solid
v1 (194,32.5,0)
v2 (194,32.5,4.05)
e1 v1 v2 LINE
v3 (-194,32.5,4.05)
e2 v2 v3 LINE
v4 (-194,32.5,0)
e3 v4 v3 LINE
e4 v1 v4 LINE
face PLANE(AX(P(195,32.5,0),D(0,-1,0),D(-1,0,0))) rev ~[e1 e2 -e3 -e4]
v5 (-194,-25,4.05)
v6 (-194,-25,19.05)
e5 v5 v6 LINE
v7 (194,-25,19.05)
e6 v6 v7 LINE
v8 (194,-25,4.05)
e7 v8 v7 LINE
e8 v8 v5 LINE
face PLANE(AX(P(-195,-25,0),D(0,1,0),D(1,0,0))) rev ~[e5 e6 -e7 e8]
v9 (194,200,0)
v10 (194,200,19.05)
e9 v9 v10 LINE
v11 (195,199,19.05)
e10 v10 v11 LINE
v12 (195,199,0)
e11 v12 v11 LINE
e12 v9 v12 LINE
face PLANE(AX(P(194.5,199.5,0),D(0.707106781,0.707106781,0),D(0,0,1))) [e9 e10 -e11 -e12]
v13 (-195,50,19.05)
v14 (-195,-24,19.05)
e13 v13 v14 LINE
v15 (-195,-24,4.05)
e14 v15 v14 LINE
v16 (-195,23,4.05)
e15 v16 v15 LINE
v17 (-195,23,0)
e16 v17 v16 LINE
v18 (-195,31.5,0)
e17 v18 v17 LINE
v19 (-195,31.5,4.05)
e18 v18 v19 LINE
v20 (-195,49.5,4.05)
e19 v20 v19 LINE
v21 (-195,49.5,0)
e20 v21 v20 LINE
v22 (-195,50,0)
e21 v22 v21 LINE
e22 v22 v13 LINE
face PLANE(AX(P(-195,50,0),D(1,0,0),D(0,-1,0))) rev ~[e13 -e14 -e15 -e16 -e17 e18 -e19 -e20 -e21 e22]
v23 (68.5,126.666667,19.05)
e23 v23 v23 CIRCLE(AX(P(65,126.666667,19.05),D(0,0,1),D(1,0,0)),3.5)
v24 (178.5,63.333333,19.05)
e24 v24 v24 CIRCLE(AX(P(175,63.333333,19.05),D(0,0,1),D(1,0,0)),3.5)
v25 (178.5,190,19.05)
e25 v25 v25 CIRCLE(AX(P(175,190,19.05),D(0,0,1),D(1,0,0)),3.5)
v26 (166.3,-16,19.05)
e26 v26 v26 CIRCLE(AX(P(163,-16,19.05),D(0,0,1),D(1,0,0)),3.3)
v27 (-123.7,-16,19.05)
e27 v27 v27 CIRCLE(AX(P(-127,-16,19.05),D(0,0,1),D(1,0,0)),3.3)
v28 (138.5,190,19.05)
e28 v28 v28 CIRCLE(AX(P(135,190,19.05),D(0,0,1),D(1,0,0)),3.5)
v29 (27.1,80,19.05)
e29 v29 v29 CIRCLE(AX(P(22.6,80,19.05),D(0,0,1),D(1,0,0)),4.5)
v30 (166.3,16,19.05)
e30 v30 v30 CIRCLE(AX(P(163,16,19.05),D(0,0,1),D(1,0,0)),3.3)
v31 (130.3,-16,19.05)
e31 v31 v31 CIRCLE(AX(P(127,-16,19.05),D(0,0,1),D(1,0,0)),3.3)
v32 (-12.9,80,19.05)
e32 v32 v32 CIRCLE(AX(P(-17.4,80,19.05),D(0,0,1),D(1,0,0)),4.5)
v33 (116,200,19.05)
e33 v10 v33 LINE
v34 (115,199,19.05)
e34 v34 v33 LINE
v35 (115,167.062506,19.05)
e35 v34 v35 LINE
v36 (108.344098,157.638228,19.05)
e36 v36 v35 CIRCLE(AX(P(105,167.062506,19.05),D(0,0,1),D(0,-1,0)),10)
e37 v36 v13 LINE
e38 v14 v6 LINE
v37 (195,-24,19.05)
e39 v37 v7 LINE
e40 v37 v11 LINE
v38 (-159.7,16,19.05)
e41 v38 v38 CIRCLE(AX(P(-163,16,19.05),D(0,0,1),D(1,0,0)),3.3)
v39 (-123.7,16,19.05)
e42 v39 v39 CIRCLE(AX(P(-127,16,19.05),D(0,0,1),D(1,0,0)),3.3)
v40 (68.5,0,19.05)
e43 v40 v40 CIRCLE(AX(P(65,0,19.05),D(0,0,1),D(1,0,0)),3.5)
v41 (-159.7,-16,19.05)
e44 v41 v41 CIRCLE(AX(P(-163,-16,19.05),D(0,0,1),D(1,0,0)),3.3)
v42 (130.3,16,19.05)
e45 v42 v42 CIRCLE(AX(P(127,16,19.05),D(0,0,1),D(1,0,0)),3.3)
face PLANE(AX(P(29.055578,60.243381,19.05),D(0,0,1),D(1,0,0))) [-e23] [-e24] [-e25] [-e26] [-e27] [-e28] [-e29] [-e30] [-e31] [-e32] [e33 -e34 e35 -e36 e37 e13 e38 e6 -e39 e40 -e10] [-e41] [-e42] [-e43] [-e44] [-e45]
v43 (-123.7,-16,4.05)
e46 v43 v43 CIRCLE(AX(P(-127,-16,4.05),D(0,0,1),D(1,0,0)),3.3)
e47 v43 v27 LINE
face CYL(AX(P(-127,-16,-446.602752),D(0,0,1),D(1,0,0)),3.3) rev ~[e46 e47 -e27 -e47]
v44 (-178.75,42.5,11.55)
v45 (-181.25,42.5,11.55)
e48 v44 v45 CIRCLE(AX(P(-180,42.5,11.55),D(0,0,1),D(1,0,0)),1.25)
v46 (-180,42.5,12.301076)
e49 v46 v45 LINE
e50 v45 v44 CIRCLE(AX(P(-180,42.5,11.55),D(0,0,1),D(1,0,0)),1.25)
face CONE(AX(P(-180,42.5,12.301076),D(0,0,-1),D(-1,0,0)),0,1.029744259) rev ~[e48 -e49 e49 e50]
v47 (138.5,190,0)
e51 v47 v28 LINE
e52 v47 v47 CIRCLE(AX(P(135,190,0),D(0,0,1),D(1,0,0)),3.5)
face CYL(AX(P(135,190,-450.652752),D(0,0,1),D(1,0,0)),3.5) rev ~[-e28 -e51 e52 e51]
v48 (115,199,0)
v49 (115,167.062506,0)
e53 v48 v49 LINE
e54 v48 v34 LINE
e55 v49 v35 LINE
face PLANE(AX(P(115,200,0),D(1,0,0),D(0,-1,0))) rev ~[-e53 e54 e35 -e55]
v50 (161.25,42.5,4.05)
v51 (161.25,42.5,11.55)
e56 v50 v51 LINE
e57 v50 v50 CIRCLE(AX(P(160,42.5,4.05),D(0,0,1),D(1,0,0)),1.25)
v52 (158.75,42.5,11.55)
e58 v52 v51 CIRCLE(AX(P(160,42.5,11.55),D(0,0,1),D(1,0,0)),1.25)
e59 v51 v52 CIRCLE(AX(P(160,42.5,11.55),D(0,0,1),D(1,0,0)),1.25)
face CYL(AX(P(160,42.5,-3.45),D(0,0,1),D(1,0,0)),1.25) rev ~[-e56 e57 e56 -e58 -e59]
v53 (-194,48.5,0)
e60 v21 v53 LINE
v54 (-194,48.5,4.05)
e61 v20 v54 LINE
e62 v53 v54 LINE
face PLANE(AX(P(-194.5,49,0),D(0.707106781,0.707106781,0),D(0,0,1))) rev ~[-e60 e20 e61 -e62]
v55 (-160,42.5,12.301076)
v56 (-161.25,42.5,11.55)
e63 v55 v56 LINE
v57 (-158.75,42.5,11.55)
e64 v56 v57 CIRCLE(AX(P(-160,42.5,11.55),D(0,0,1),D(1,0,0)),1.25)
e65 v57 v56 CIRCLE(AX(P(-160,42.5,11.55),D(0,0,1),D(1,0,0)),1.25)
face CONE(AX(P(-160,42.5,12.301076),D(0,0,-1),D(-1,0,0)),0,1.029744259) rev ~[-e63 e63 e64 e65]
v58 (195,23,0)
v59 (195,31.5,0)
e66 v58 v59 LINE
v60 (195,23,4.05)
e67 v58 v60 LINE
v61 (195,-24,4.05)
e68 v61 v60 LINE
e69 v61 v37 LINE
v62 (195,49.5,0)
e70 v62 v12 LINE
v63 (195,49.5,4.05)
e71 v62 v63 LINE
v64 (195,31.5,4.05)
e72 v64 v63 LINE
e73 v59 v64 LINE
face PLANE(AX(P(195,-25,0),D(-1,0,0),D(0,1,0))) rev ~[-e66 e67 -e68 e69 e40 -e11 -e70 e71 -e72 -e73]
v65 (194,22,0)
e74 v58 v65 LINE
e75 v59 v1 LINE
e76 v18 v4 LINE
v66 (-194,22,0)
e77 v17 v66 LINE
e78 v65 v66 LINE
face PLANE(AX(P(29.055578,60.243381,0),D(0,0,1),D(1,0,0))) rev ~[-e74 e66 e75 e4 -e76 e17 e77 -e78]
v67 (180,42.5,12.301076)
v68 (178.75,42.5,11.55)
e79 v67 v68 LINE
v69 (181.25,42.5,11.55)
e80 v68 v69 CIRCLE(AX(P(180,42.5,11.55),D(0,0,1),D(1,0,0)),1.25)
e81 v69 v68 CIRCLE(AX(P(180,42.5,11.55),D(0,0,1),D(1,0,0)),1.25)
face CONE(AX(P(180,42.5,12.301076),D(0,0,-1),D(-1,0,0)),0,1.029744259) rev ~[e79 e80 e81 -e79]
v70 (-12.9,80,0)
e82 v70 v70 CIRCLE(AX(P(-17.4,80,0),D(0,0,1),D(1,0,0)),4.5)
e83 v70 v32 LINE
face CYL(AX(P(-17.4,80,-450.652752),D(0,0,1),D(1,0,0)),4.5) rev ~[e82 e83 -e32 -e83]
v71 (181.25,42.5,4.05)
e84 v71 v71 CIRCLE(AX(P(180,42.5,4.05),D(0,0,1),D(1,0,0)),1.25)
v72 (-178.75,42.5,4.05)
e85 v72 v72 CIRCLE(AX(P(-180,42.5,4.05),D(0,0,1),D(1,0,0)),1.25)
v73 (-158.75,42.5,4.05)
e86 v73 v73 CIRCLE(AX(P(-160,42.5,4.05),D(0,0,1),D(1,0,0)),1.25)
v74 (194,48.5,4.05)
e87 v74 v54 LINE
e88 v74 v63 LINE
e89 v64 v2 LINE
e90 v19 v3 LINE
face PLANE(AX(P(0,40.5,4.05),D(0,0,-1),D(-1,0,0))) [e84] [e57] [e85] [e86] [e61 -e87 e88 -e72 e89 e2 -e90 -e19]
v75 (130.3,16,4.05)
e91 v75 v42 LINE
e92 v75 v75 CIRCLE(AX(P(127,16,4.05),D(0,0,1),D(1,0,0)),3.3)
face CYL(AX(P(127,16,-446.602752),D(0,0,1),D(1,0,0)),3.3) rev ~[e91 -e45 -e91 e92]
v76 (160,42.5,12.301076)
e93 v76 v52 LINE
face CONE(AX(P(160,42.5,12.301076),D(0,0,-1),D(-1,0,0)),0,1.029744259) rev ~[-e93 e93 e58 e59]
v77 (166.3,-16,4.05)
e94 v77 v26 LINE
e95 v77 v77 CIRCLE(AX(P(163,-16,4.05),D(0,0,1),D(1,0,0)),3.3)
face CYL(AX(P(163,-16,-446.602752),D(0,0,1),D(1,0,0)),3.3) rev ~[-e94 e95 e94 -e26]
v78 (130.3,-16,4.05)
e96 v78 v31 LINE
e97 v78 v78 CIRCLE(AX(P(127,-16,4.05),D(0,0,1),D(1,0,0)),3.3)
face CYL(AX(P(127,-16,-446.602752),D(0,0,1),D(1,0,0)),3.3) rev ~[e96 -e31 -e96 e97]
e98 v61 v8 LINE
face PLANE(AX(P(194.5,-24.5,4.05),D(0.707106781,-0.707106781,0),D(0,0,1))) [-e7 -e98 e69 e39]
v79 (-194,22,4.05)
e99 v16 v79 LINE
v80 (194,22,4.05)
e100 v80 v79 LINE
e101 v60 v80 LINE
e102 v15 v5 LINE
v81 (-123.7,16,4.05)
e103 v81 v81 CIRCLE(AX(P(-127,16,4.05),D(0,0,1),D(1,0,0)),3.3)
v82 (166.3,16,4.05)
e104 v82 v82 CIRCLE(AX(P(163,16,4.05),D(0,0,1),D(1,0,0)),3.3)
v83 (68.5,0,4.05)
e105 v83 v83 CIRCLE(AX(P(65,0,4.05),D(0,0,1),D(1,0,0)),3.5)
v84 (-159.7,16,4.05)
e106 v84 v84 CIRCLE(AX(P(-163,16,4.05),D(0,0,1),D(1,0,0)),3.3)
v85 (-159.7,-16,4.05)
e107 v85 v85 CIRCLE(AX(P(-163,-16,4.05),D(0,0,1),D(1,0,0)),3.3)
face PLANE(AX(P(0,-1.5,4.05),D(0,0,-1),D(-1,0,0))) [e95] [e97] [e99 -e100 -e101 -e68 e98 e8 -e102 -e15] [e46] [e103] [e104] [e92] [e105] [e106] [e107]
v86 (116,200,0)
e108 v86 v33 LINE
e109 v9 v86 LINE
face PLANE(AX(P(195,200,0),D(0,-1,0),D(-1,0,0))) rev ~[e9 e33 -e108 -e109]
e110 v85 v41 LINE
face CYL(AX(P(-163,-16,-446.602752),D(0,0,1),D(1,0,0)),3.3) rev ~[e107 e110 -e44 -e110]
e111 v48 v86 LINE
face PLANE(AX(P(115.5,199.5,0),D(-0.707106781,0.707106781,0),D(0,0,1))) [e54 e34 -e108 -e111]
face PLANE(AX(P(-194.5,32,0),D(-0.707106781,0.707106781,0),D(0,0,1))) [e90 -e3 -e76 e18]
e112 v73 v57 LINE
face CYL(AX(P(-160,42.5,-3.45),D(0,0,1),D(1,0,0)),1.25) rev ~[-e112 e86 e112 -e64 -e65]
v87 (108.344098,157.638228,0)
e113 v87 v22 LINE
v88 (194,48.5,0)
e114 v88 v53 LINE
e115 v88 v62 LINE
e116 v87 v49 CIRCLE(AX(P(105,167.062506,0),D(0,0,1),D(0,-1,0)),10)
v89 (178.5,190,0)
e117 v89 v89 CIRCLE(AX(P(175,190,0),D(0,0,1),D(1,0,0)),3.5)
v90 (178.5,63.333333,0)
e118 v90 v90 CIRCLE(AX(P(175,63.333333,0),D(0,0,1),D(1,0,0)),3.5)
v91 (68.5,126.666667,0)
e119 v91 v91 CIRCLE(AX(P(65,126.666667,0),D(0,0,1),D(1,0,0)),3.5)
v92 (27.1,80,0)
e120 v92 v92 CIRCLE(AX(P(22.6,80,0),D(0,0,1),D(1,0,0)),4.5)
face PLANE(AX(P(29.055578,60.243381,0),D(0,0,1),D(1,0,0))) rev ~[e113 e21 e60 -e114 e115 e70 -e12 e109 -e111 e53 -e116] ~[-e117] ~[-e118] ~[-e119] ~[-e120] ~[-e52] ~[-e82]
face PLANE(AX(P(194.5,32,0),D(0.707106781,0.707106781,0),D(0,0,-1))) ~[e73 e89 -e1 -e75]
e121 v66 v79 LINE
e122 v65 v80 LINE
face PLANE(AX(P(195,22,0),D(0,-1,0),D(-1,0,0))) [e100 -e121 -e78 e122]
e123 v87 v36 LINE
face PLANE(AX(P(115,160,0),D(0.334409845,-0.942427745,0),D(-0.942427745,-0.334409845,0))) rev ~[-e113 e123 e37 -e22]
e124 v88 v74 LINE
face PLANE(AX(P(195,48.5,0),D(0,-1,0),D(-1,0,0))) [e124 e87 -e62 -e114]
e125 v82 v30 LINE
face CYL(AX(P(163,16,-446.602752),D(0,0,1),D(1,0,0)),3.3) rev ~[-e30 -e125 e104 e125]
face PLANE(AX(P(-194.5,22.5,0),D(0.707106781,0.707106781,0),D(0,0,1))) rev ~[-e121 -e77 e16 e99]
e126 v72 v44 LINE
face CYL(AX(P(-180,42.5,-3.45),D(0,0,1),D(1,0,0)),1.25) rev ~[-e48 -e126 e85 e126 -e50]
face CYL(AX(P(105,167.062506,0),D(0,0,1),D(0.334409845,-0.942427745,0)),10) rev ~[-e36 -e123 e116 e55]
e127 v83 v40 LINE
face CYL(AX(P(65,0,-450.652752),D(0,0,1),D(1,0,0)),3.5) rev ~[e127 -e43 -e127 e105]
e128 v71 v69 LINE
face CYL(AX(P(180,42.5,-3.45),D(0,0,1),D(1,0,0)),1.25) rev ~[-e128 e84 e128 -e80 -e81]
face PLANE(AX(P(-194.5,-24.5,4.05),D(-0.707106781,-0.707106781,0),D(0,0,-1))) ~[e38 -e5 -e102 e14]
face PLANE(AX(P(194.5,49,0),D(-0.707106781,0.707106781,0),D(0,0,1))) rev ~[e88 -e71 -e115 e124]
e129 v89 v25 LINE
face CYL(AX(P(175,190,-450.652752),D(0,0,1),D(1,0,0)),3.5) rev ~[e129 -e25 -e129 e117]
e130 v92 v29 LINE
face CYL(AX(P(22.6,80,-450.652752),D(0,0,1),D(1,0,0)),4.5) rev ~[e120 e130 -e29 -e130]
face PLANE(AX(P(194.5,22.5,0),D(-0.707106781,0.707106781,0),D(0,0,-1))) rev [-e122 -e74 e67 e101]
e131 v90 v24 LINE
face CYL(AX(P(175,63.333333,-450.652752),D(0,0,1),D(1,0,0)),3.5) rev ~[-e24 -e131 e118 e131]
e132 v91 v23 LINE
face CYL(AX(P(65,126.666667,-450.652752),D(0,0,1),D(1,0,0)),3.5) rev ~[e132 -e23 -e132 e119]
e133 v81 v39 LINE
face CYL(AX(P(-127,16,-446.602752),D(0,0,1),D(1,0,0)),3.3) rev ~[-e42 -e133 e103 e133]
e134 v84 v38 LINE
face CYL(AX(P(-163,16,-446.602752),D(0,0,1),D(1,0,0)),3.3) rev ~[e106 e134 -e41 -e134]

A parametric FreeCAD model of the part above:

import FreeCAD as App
import Part
import Sketcher

V = App.Vector
Q = App.Units.Quantity


def edges_at(feature, points):
    """Names of the edges that pass closest to the given points."""
    edges = feature.Shape.Edges
    near = lambda p: min(range(len(edges)), key=lambda i: edges[i].distToShape(Part.Vertex(*p))[0])
    return sorted({f"Edge{near(p) + 1}" for p in points})

doc = App.newDocument("Part")
body = doc.addObject("PartDesign::Body", "Body")

# Sketch on XY plane
sketch1 = body.newObject("Sketcher::SketchObject", "Sketch")
sketch1.AttachmentSupport = (doc.getObject("XY_Plane"), [""])
sketch1.MapMode = "FlatFace"
sketch1.addGeometry([
    Part.LineSegment(V(-195, 50, 0), V(-195, -25, 0)),  # 0
    Part.LineSegment(V(-195, -25, 0), V(195, -25, 0)),  # 1
    Part.LineSegment(V(195, -25, 0), V(195, 200, 0)),  # 2
    Part.LineSegment(V(195, 200, 0), V(115, 200, 0)),  # 3
    Part.LineSegment(V(115, 200, 0), V(115, 160, 0)),  # 4
    Part.LineSegment(V(115, 160, 0), V(-195, 50, 0)),  # 5
], False)
sketch1.addConstraint([
    Sketcher.Constraint("Coincident", 0, 2, 1, 1),
    Sketcher.Constraint("Coincident", 1, 2, 2, 1),
    Sketcher.Constraint("Coincident", 2, 2, 3, 1),
    Sketcher.Constraint("Coincident", 3, 2, 4, 1),
    Sketcher.Constraint("Coincident", 4, 2, 5, 1),
    Sketcher.Constraint("Coincident", 5, 2, 0, 1),
    Sketcher.Constraint("Vertical", 0),
    Sketcher.Constraint("Horizontal", 1),
    Sketcher.Constraint("Vertical", 2),
    Sketcher.Constraint("Horizontal", 3),
    Sketcher.Constraint("Vertical", 4),
    Sketcher.Constraint("DistanceX", 1, 1, 1, 2, Q("390 mm")),
    Sketcher.Constraint("DistanceX", 3, 2, 3, 1, Q("80 mm")),
    Sketcher.Constraint("DistanceY", 0, 2, 0, 1, Q("75 mm")),
    Sketcher.Constraint("DistanceY", 2, 1, 2, 2, Q("225 mm")),
    Sketcher.Constraint("DistanceY", 4, 2, 4, 1, Q("40 mm")),
    Sketcher.Constraint("DistanceX", 0, 2, -1, 1, Q("195 mm")),
    Sketcher.Constraint("DistanceY", 0, 2, -1, 1, Q("25 mm")),
])
pad1 = body.newObject("PartDesign::Pad", "Pad")
pad1.Profile = sketch1
pad1.Length = 19.05

# Sketch on XY plane
sketch2 = body.newObject("Sketcher::SketchObject", "Sketch001")
sketch2.AttachmentSupport = (doc.getObject("XY_Plane"), [""])
sketch2.MapMode = "FlatFace"
sketch2.addGeometry([
    Part.LineSegment(V(195, 22, 0), V(195, -25, 0)),  # 0
    Part.LineSegment(V(195, -25, 0), V(-195, -25, 0)),  # 1
    Part.LineSegment(V(-195, -25, 0), V(-195, 22, 0)),  # 2
    Part.LineSegment(V(-195, 22, 0), V(195, 22, 0)),  # 3
    Part.LineSegment(V(195, 48.5, 0), V(195, 32.5, 0)),  # 4
    Part.LineSegment(V(195, 32.5, 0), V(-195, 32.5, 0)),  # 5
    Part.LineSegment(V(-195, 32.5, 0), V(-195, 48.5, 0)),  # 6
    Part.LineSegment(V(-195, 48.5, 0), V(195, 48.5, 0)),  # 7
], False)
sketch2.addConstraint([
    Sketcher.Constraint("Coincident", 0, 2, 1, 1),
    Sketcher.Constraint("Coincident", 1, 2, 2, 1),
    Sketcher.Constraint("Coincident", 2, 2, 3, 1),
    Sketcher.Constraint("Coincident", 3, 2, 0, 1),
    Sketcher.Constraint("Coincident", 4, 2, 5, 1),
    Sketcher.Constraint("Coincident", 5, 2, 6, 1),
    Sketcher.Constraint("Coincident", 6, 2, 7, 1),
    Sketcher.Constraint("Coincident", 7, 2, 4, 1),
    Sketcher.Constraint("Vertical", 0),
    Sketcher.Constraint("Horizontal", 1),
    Sketcher.Constraint("Vertical", 2),
    Sketcher.Constraint("Horizontal", 3),
    Sketcher.Constraint("Vertical", 4),
    Sketcher.Constraint("Horizontal", 5),
    Sketcher.Constraint("Vertical", 6),
    Sketcher.Constraint("Horizontal", 7),
    Sketcher.Constraint("Vertical", 3, 2, 4, 2),
    Sketcher.Constraint("Vertical", 2, 2, 5, 2),
    Sketcher.Constraint("DistanceX", 1, 2, 1, 1, Q("390 mm")),
    Sketcher.Constraint("DistanceY", 0, 2, 0, 1, Q("47 mm")),
    Sketcher.Constraint("DistanceY", 4, 2, 4, 1, Q("16 mm")),
    Sketcher.Constraint("DistanceX", -1, 1, 0, 2, Q("195 mm")),
    Sketcher.Constraint("DistanceY", 0, 2, -1, 1, Q("25 mm")),
    Sketcher.Constraint("DistanceY", -1, 1, 4, 2, Q("32.5 mm")),
])
pocket1 = body.newObject("PartDesign::Pocket", "Pocket")
pocket1.Profile = sketch2
pocket1.Length = 4.05
pocket1.Reversed = True

# Sketch on XY plane
sketch3 = body.newObject("Sketcher::SketchObject", "Sketch002")
sketch3.AttachmentSupport = (doc.getObject("XY_Plane"), [""])
sketch3.MapMode = "FlatFace"
sketch3.AttachmentOffset = App.Placement(V(0, 0, 4.05), App.Rotation())
sketch3.addGeometry([
    Part.Circle(V(-127, 16, 0), V(0, 0, 1), 3.3),
    Part.Circle(V(-163, 16, 0), V(0, 0, 1), 3.3),
    Part.Circle(V(-163, -16, 0), V(0, 0, 1), 3.3),
    Part.Circle(V(-127, -16, 0), V(0, 0, 1), 3.3),
], False)
sketch3.addConstraint([
    Sketcher.Constraint("Equal", 0, 1),
    Sketcher.Constraint("Equal", 1, 2),
    Sketcher.Constraint("Equal", 2, 3),
    Sketcher.Constraint("Symmetric", 1, 3, 2, 3, -1),
    Sketcher.Constraint("Symmetric", 0, 3, 3, 3, -1),
    Sketcher.Constraint("Horizontal", 0, 3, 1, 3),
    Sketcher.Constraint("Diameter", 0, Q("6.6 mm")),
    Sketcher.Constraint("DistanceX", 0, 3, -1, 1, Q("127 mm")),
    Sketcher.Constraint("DistanceY", -1, 1, 0, 3, Q("16 mm")),
    Sketcher.Constraint("DistanceX", 1, 3, -1, 1, Q("163 mm")),
])
doc.recompute()
hole = body.newObject("PartDesign::Hole", "Hole")
hole.Profile = sketch3
hole.ThreadType = "None"
hole.Diameter = 6.6
hole.DepthType = "ThroughAll"
hole.Reversed = True

# Sketch on XY plane
sketch4 = body.newObject("Sketcher::SketchObject", "Sketch003")
sketch4.AttachmentSupport = (doc.getObject("XY_Plane"), [""])
sketch4.MapMode = "FlatFace"
sketch4.AttachmentOffset = App.Placement(V(0, 0, 4.05), App.Rotation())
sketch4.addGeometry([
    Part.Circle(V(163, 16, 0), V(0, 0, 1), 3.3),
    Part.Circle(V(127, 16, 0), V(0, 0, 1), 3.3),
    Part.Circle(V(127, -16, 0), V(0, 0, 1), 3.3),
    Part.Circle(V(163, -16, 0), V(0, 0, 1), 3.3),
], False)
sketch4.addConstraint([
    Sketcher.Constraint("Equal", 0, 1),
    Sketcher.Constraint("Equal", 1, 2),
    Sketcher.Constraint("Equal", 2, 3),
    Sketcher.Constraint("Symmetric", 1, 3, 2, 3, -1),
    Sketcher.Constraint("Symmetric", 0, 3, 3, 3, -1),
    Sketcher.Constraint("Horizontal", 0, 3, 1, 3),
    Sketcher.Constraint("Diameter", 0, Q("6.6 mm")),
    Sketcher.Constraint("DistanceX", -1, 1, 0, 3, Q("163 mm")),
    Sketcher.Constraint("DistanceY", -1, 1, 0, 3, Q("16 mm")),
    Sketcher.Constraint("DistanceX", -1, 1, 1, 3, Q("127 mm")),
])
doc.recompute()
hole2 = body.newObject("PartDesign::Hole", "Hole001")
hole2.Profile = sketch4
hole2.ThreadType = "None"
hole2.Diameter = 6.6
hole2.DepthType = "ThroughAll"
hole2.Reversed = True

# Sketch on XY plane
sketch5 = body.newObject("Sketcher::SketchObject", "Sketch004")
sketch5.AttachmentSupport = (doc.getObject("XY_Plane"), [""])
sketch5.MapMode = "FlatFace"
sketch5.AttachmentOffset = App.Placement(V(0, 0, 4.05), App.Rotation())
sketch5.addGeometry([
    Part.Circle(V(180, 42.5, 0), V(0, 0, 1), 1.25),
    Part.Circle(V(160, 42.5, 0), V(0, 0, 1), 1.25),
    Part.Circle(V(-180, 42.5, 0), V(0, 0, 1), 1.25),
    Part.Circle(V(-160, 42.5, 0), V(0, 0, 1), 1.25),
], False)
sketch5.addConstraint([
    Sketcher.Constraint("Equal", 0, 1),
    Sketcher.Constraint("Equal", 1, 2),
    Sketcher.Constraint("Equal", 2, 3),
    Sketcher.Constraint("Symmetric", 0, 3, 2, 3, -2),
    Sketcher.Constraint("Symmetric", 1, 3, 3, 3, -2),
    Sketcher.Constraint("Horizontal", 0, 3, 1, 3),
    Sketcher.Constraint("Diameter", 0, Q("2.5 mm")),
    Sketcher.Constraint("DistanceX", -1, 1, 0, 3, Q("180 mm")),
    Sketcher.Constraint("DistanceX", -1, 1, 1, 3, Q("160 mm")),
    Sketcher.Constraint("DistanceY", -1, 1, 0, 3, Q("42.5 mm")),
])
doc.recompute()
hole3 = body.newObject("PartDesign::Hole", "Hole002")
hole3.Profile = sketch5
hole3.ThreadType = "None"
hole3.Diameter = 2.5
hole3.DepthType = "Dimension"
hole3.Depth = 7.5
hole3.DrillPoint = "Angled"
hole3.DrillPointAngle = 118
hole3.Reversed = True

# Sketch on XY plane
sketch6 = body.newObject("Sketcher::SketchObject", "Sketch005")
sketch6.AttachmentSupport = (doc.getObject("XY_Plane"), [""])
sketch6.MapMode = "FlatFace"
sketch6.addGeometry([
    Part.Circle(V(175, 190, 0), V(0, 0, 1), 3.5),  # 0
    Part.Circle(V(135, 190, 0), V(0, 0, 1), 3.5),  # 1
    Part.Circle(V(65, 126.666667, 0), V(0, 0, 1), 3.5),  # 2
    Part.Circle(V(175, 63.333333, 0), V(0, 0, 1), 3.5),  # 3
    Part.Circle(V(65, 0, 0), V(0, 0, 1), 3.5),  # 4
], False)
sketch6.addConstraint([
    Sketcher.Constraint("Equal", 0, 1),
    Sketcher.Constraint("Equal", 1, 2),
    Sketcher.Constraint("Equal", 2, 3),
    Sketcher.Constraint("Equal", 3, 4),
    Sketcher.Constraint("PointOnObject", 4, 3, -1),
    Sketcher.Constraint("Horizontal", 0, 3, 1, 3),
    Sketcher.Constraint("Vertical", 0, 3, 3, 3),
    Sketcher.Constraint("Vertical", 2, 3, 4, 3),
    Sketcher.Constraint("Diameter", 0, Q("7 mm")),
    Sketcher.Constraint("DistanceX", -1, 1, 0, 3, Q("175 mm")),
    Sketcher.Constraint("DistanceY", -1, 1, 0, 3, Q("190 mm")),
    Sketcher.Constraint("DistanceX", -1, 1, 1, 3, Q("135 mm")),
    Sketcher.Constraint("DistanceX", -1, 1, 2, 3, Q("65 mm")),
    Sketcher.Constraint("DistanceY", -1, 1, 2, 3, Q("126.666667 mm")),
    Sketcher.Constraint("DistanceY", -1, 1, 3, 3, Q("63.333333 mm")),
])
doc.recompute()
hole4 = body.newObject("PartDesign::Hole", "Hole003")
hole4.Profile = sketch6
hole4.ThreadType = "None"
hole4.Diameter = 7
hole4.DepthType = "ThroughAll"
hole4.Reversed = True

# Sketch on XY plane
sketch7 = body.newObject("Sketcher::SketchObject", "Sketch006")
sketch7.AttachmentSupport = (doc.getObject("XY_Plane"), [""])
sketch7.MapMode = "FlatFace"
sketch7.addGeometry([
    Part.Circle(V(22.6, 80, 0), V(0, 0, 1), 4.5),
    Part.Circle(V(-17.4, 80, 0), V(0, 0, 1), 4.5),
], False)
sketch7.addConstraint([
    Sketcher.Constraint("Equal", 0, 1),
    Sketcher.Constraint("Horizontal", 0, 3, 1, 3),
    Sketcher.Constraint("Diameter", 0, Q("9 mm")),
    Sketcher.Constraint("DistanceY", -1, 1, 0, 3, Q("80 mm")),
    Sketcher.Constraint("DistanceX", 1, 3, 0, 3, Q("40 mm")),
    Sketcher.Constraint("DistanceX", -1, 1, 0, 3, Q("22.6 mm")),
])
doc.recompute()
hole5 = body.newObject("PartDesign::Hole", "Hole004")
hole5.Profile = sketch7
hole5.ThreadType = "None"
hole5.Diameter = 9
hole5.DepthType = "ThroughAll"
hole5.Reversed = True
doc.recompute()

fillet = body.newObject("PartDesign::Fillet", "Fillet")
fillet.Base = (hole5, edges_at(hole5, [(115, 160, 9.525)]))
fillet.Radius = 10
doc.recompute()

chamfer = body.newObject("PartDesign::Chamfer", "Chamfer")
chamfer.Base = (fillet, edges_at(fillet, [
    (115, 200, 9.525),
    (195, 200, 9.525),
    (195, -25, 11.55),
    (-195, -25, 11.55),
    (-195, 22, 2.025),
    (195, 22, 2.025),
    (-195, 32.5, 2.025),
    (-195, 48.5, 2.025),
    (195, 48.5, 2.025),
    (195, 32.5, 2.025),
]))
chamfer.Size = 1

doc.recompute()
